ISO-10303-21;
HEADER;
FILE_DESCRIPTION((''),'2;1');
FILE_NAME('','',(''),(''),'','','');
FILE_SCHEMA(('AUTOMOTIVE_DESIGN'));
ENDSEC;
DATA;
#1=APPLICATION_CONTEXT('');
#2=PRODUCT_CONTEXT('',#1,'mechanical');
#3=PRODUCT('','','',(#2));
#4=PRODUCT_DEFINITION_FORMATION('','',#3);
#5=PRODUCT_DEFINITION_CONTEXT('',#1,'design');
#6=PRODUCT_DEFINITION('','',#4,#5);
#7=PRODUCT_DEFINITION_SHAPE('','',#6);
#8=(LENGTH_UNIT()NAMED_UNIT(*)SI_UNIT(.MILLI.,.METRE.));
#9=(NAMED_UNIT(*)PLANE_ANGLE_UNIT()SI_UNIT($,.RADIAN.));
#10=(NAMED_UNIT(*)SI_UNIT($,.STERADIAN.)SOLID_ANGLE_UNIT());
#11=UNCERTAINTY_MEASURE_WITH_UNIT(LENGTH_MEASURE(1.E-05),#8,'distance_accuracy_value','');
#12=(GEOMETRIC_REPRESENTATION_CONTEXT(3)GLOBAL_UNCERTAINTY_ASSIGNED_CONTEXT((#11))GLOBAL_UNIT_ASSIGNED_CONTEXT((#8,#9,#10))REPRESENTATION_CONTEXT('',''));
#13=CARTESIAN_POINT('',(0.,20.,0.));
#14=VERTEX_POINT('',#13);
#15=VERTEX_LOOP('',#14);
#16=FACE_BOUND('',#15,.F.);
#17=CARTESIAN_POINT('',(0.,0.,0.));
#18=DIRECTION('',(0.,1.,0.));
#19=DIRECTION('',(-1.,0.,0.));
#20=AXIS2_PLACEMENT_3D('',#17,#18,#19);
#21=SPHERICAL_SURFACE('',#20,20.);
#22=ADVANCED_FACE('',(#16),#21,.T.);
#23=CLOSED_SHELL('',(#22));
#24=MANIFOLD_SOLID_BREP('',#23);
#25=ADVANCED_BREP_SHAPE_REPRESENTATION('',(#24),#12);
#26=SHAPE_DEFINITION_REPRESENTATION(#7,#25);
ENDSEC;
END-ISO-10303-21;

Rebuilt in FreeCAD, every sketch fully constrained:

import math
import FreeCAD as App
import Part
import Sketcher

V = App.Vector
Q = App.Units.Quantity

doc = App.newDocument("Part")
body = doc.addObject("PartDesign::Body", "Body")

sketch1 = doc.addObject("Sketcher::SketchObject", "Sketch")
body.addObject(sketch1)
sketch1.AttachmentSupport = (doc.XY_Plane, [""])
sketch1.MapMode = "FlatFace"
sketch1.addGeometry(Part.LineSegment(V(0, -20, 0), V(0, 20, 0)), False)
sketch1.addGeometry(Part.ArcOfCircle(Part.Circle(V(0, 0, 0), V(0, 0, 1), 20), math.radians(90), math.radians(270)), False)
sketch1.addConstraint(Sketcher.Constraint("Coincident", 0, 1, 1, 2))
sketch1.addConstraint(Sketcher.Constraint("Coincident", 1, 1, 0, 2))
sketch1.addConstraint(Sketcher.Constraint("Vertical", 0))
sketch1.addConstraint(Sketcher.Constraint("Coincident", 1, 3, -1, 1))
sketch1.addConstraint(Sketcher.Constraint("PointOnObject", 0, 1, -2))
sketch1.addConstraint(Sketcher.Constraint("Radius", 1, Q("20 mm")))
revolution = doc.addObject("PartDesign::Revolution", "Revolution")
body.addObject(revolution)
revolution.Profile = sketch1
revolution.ReferenceAxis = (sketch1, ["V_Axis"])
revolution.Angle = 360

doc.recompute()
